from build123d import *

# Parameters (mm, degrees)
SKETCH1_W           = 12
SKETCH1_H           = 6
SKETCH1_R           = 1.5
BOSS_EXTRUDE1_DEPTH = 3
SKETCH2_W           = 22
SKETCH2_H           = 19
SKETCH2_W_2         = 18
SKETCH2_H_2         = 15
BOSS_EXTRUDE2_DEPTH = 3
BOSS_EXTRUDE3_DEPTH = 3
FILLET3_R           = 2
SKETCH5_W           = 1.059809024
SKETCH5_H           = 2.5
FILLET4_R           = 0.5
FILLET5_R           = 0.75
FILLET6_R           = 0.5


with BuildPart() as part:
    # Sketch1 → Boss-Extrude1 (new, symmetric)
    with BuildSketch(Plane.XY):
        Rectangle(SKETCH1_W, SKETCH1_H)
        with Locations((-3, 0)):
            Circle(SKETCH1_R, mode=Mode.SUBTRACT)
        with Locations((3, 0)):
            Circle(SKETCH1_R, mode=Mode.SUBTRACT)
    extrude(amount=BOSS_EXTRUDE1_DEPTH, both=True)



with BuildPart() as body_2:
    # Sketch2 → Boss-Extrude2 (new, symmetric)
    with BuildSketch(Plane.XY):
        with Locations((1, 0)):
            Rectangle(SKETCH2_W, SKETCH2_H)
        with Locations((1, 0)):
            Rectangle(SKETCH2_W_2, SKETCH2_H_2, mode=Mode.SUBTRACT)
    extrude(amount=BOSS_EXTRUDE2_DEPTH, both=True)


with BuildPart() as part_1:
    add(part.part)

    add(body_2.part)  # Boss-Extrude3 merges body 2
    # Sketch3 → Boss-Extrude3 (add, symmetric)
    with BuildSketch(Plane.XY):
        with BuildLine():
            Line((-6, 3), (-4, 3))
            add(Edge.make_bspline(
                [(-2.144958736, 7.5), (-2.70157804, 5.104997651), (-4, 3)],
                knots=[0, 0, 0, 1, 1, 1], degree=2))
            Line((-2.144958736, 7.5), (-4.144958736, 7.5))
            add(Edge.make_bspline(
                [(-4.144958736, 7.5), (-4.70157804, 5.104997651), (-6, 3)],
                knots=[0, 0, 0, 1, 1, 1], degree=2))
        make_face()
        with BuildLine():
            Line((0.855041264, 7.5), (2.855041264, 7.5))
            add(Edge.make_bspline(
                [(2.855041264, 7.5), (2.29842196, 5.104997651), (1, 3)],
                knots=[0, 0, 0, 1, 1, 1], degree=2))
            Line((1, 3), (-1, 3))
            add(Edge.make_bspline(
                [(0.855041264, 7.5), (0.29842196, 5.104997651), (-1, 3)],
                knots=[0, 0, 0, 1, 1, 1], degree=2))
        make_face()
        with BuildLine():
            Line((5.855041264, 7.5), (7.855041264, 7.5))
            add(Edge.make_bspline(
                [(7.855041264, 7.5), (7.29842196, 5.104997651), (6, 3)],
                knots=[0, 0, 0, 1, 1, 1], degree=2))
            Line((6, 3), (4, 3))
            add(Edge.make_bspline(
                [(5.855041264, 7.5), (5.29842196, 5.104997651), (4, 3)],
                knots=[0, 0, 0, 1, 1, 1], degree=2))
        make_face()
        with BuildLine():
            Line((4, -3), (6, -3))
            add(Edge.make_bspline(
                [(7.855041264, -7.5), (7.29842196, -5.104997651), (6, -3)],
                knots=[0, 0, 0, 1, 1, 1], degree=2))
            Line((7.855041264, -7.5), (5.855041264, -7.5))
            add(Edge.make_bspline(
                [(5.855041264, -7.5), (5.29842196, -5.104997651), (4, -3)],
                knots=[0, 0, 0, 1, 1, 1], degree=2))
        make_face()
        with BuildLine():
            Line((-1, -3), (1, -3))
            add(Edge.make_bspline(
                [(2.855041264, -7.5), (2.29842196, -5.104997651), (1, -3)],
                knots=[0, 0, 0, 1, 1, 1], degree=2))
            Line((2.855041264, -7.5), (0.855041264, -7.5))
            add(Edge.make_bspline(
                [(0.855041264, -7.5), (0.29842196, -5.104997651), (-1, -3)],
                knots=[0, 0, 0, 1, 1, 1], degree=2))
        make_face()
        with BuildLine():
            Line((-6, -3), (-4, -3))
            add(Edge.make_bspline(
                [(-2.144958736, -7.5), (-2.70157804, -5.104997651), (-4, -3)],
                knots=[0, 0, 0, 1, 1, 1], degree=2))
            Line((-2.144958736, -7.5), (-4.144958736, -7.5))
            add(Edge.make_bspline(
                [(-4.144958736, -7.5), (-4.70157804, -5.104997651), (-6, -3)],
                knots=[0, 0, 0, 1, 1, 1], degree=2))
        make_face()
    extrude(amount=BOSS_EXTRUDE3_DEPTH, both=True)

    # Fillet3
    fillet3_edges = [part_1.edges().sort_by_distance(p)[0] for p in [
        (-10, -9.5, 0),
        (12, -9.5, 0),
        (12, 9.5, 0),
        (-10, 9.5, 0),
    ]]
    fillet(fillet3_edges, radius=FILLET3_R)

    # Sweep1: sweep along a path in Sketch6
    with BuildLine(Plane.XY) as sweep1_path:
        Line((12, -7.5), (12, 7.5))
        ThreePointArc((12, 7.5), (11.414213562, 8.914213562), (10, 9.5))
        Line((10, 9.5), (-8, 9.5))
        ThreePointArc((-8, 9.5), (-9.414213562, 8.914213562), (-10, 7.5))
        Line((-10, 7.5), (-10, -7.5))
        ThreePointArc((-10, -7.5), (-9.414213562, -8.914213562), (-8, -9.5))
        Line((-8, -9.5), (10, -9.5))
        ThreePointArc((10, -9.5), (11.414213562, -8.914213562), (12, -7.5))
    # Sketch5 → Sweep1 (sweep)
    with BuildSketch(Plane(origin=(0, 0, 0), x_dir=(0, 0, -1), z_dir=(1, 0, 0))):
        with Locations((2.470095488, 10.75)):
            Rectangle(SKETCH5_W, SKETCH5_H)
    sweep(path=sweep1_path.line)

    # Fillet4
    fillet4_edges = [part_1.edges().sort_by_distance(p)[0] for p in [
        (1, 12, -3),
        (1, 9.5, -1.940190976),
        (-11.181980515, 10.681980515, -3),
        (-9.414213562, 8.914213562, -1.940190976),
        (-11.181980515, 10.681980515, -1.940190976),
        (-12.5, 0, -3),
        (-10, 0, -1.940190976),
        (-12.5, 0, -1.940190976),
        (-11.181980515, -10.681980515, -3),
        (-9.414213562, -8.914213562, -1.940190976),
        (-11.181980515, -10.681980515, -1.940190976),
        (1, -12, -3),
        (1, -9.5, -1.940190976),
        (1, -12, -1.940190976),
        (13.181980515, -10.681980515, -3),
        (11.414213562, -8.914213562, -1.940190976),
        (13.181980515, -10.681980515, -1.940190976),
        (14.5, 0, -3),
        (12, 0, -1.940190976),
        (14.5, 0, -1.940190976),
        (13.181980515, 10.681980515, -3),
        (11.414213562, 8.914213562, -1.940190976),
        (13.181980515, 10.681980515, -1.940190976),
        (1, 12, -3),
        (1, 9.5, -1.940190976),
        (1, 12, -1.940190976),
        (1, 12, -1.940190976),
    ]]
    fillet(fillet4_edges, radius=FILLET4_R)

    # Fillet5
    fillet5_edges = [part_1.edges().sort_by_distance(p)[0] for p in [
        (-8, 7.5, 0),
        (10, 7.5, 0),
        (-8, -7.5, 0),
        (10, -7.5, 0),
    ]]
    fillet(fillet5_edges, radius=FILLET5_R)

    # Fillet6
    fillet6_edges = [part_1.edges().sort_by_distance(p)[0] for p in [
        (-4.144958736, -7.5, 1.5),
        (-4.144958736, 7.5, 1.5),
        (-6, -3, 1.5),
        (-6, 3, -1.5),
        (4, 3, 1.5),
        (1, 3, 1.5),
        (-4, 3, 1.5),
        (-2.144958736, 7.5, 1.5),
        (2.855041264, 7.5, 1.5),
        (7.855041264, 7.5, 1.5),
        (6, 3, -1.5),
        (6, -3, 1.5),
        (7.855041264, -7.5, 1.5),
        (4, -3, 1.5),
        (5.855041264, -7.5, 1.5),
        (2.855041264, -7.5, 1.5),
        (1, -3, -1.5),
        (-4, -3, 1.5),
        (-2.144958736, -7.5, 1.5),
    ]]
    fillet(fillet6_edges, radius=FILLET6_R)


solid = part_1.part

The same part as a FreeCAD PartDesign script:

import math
import FreeCAD as App
import Part
import Sketcher


def edges_at(feature, points):
    """Names of the edges that pass closest to the given points."""
    edges = feature.Shape.Edges
    near = lambda p: min(range(len(edges)), key=lambda i: edges[i].distToShape(Part.Vertex(*p))[0])
    return sorted({f"Edge{near(p) + 1}" for p in points})


def add_polygon(sketch, points):
    """Adds a closed chain of lines whose ends are joined by coincident constraints."""
    first, n = sketch.GeometryCount, len(points)
    for a, b in zip(points, points[1:] + points[:1]):
        sketch.addGeometry(Part.LineSegment(App.Vector(*a, 0), App.Vector(*b, 0)), False)
    for i in range(n):
        sketch.addConstraint(Sketcher.Constraint("Coincident", first + i, 2, first + (i + 1) % n, 1))

doc = App.newDocument("Part")
body = doc.addObject("PartDesign::Body", "Body")

sketch1 = doc.addObject("Sketcher::SketchObject", "Sketch")
body.addObject(sketch1)
sketch1.AttachmentSupport = (doc.XY_Plane, [""])
sketch1.MapMode = "FlatFace"
add_polygon(sketch1, [(-6, 3), (-6, -3), (6, -3), (6, 3)])
sketch1.addGeometry(Part.Circle(App.Vector(-3, 0, 0), App.Vector(0, 0, 1), 1.5), False)
sketch1.addGeometry(Part.Circle(App.Vector(3, 0, 0), App.Vector(0, 0, 1), 1.5), False)
sketch1.addConstraint([
    Sketcher.Constraint("Vertical", 0),
    Sketcher.Constraint("Horizontal", 1),
    Sketcher.Constraint("Vertical", 2),
    Sketcher.Constraint("Horizontal", 3),
    Sketcher.Constraint("Equal", 4, 5),
    Sketcher.Constraint("Symmetric", 4, 3, 5, 3, -1, 1),
    Sketcher.Constraint("Symmetric", 0, 2, 2, 2, -1, 1),
    Sketcher.Constraint("PointOnObject", 4, 3, -1),
    Sketcher.Constraint("Diameter", 4, 3.0),
    Sketcher.Constraint("DistanceX", 1, 1, 1, 2, 12.0),
    Sketcher.Constraint("DistanceY", 0, 2, 0, 1, 6.0),
    Sketcher.Constraint("DistanceX", 4, 3, -1, 1, 3.0),
])
pad1 = doc.addObject("PartDesign::Pad", "Pad")
body.addObject(pad1)
pad1.Profile = sketch1
pad1.Length = 6
pad1.Midplane = True
body2 = doc.addObject("PartDesign::Body", "Body001")

sketch2 = doc.addObject("Sketcher::SketchObject", "Sketch001")
body2.addObject(sketch2)
sketch2.AttachmentSupport = (doc.getObject("XY_Plane001"), [""])
sketch2.MapMode = "FlatFace"
add_polygon(sketch2, [(-10, 10), (-10, -10), (12, -10), (12, 10)])
add_polygon(sketch2, [(10, -8), (-8, -8), (-8, 8), (10, 8)])
sketch2.addConstraint([
    Sketcher.Constraint("Vertical", 0),
    Sketcher.Constraint("Horizontal", 1),
    Sketcher.Constraint("Vertical", 2),
    Sketcher.Constraint("Horizontal", 3),
    Sketcher.Constraint("Horizontal", 4),
    Sketcher.Constraint("Vertical", 5),
    Sketcher.Constraint("Horizontal", 6),
    Sketcher.Constraint("Vertical", 7),
    Sketcher.Constraint("DistanceX", 1, 1, 1, 2, 22.0),
    Sketcher.Constraint("DistanceX", 4, 2, 4, 1, 18.0),
    Sketcher.Constraint("DistanceY", 0, 2, 0, 1, 19.0),
    Sketcher.Constraint("DistanceY", 5, 1, 5, 2, 15.0),
    Sketcher.Constraint("DistanceX", 0, 2, -1, 1, 10.0),
    Sketcher.Constraint("DistanceX", 4, 2, -1, 1, 8.0),
    Sketcher.Constraint("DistanceY", 0, 2, 4, 2, 2.0),
    Sketcher.Constraint("DistanceY", 0, 2, -1, 1, 9.5),
])
pad2 = doc.addObject("PartDesign::Pad", "Pad001")
body2.addObject(pad2)
pad2.Profile = sketch2
pad2.Length = 6
pad2.Midplane = True
body.AllowCompound = True
doc.recompute()

boolean = doc.addObject("PartDesign::Boolean", "Boolean")
body.addObject(boolean)
boolean.Type = "Fuse"
boolean.addObjects([body2])

sketch3 = doc.addObject("Sketcher::SketchObject", "Sketch002")
body.addObject(sketch3)
sketch3.AttachmentSupport = (doc.XY_Plane, [""])
sketch3.MapMode = "FlatFace"
sketch3.addGeometry([
    Part.LineSegment(App.Vector(-6, 3, 0), App.Vector(-4, 3, 0)),
    Part.BSplineCurve([App.Vector(-2.144959, 7.5, 0), App.Vector(-2.701578, 5.104998, 0), App.Vector(-4, 3, 0)], [3, 3], [0, 1], False, 2, [1, 1, 1], False),
    Part.LineSegment(App.Vector(-2.144959, 7.5, 0), App.Vector(-4.144959, 7.5, 0)),
    Part.BSplineCurve([App.Vector(-4.144959, 7.5, 0), App.Vector(-4.701578, 5.104998, 0), App.Vector(-6, 3, 0)], [3, 3], [0, 1], False, 2, [1, 1, 1], False),
    Part.LineSegment(App.Vector(2.855041, 7.5, 0), App.Vector(0.855041, 7.5, 0)),
    Part.BSplineCurve([App.Vector(0.855041, 7.5, 0), App.Vector(0.298422, 5.104998, 0), App.Vector(-1, 3, 0)], [3, 3], [0, 1], False, 2, [1, 1, 1], False),
    Part.LineSegment(App.Vector(-1, 3, 0), App.Vector(1, 3, 0)),
    Part.BSplineCurve([App.Vector(2.855041, 7.5, 0), App.Vector(2.298422, 5.104998, 0), App.Vector(1, 3, 0)], [3, 3], [0, 1], False, 2, [1, 1, 1], False),
    Part.LineSegment(App.Vector(7.855041, 7.5, 0), App.Vector(5.855041, 7.5, 0)),
    Part.BSplineCurve([App.Vector(5.855041, 7.5, 0), App.Vector(5.298422, 5.104998, 0), App.Vector(4, 3, 0)], [3, 3], [0, 1], False, 2, [1, 1, 1], False),
    Part.LineSegment(App.Vector(4, 3, 0), App.Vector(6, 3, 0)),
    Part.BSplineCurve([App.Vector(7.855041, 7.5, 0), App.Vector(7.298422, 5.104998, 0), App.Vector(6, 3, 0)], [3, 3], [0, 1], False, 2, [1, 1, 1], False),
    Part.LineSegment(App.Vector(6, -3, 0), App.Vector(4, -3, 0)),
    Part.BSplineCurve([App.Vector(5.855041, -7.5, 0), App.Vector(5.298422, -5.104998, 0), App.Vector(4, -3, 0)], [3, 3], [0, 1], False, 2, [1, 1, 1], False),
    Part.LineSegment(App.Vector(5.855041, -7.5, 0), App.Vector(7.855041, -7.5, 0)),
    Part.BSplineCurve([App.Vector(7.855041, -7.5, 0), App.Vector(7.298422, -5.104998, 0), App.Vector(6, -3, 0)], [3, 3], [0, 1], False, 2, [1, 1, 1], False),
    Part.LineSegment(App.Vector(1, -3, 0), App.Vector(-1, -3, 0)),
    Part.BSplineCurve([App.Vector(0.855041, -7.5, 0), App.Vector(0.298422, -5.104998, 0), App.Vector(-1, -3, 0)], [3, 3], [0, 1], False, 2, [1, 1, 1], False),
    Part.LineSegment(App.Vector(0.855041, -7.5, 0), App.Vector(2.855041, -7.5, 0)),
    Part.BSplineCurve([App.Vector(2.855041, -7.5, 0), App.Vector(2.298422, -5.104998, 0), App.Vector(1, -3, 0)], [3, 3], [0, 1], False, 2, [1, 1, 1], False),
    Part.LineSegment(App.Vector(-4, -3, 0), App.Vector(-6, -3, 0)),
    Part.BSplineCurve([App.Vector(-4.144959, -7.5, 0), App.Vector(-4.701578, -5.104998, 0), App.Vector(-6, -3, 0)], [3, 3], [0, 1], False, 2, [1, 1, 1], False),
    Part.LineSegment(App.Vector(-4.144959, -7.5, 0), App.Vector(-2.144959, -7.5, 0)),
    Part.BSplineCurve([App.Vector(-2.144959, -7.5, 0), App.Vector(-2.701578, -5.104998, 0), App.Vector(-4, -3, 0)], [3, 3], [0, 1], False, 2, [1, 1, 1], False),
], False)
sketch3.addConstraint([
    Sketcher.Constraint("Block", 1),
    Sketcher.Constraint("Block", 3),
    Sketcher.Constraint("Block", 5),
    Sketcher.Constraint("Block", 7),
    Sketcher.Constraint("Block", 9),
    Sketcher.Constraint("Block", 11),
    Sketcher.Constraint("Block", 13),
    Sketcher.Constraint("Block", 15),
    Sketcher.Constraint("Block", 17),
    Sketcher.Constraint("Block", 19),
    Sketcher.Constraint("Block", 21),
    Sketcher.Constraint("Block", 23),
    Sketcher.Constraint("Coincident", 0, 2, 1, 2),
    Sketcher.Constraint("Coincident", 1, 1, 2, 1),
    Sketcher.Constraint("Coincident", 2, 2, 3, 1),
    Sketcher.Constraint("Coincident", 3, 2, 0, 1),
    Sketcher.Constraint("Coincident", 4, 2, 5, 1),
    Sketcher.Constraint("Coincident", 5, 2, 6, 1),
    Sketcher.Constraint("Coincident", 6, 2, 7, 2),
    Sketcher.Constraint("Coincident", 7, 1, 4, 1),
    Sketcher.Constraint("Coincident", 8, 2, 9, 1),
    Sketcher.Constraint("Coincident", 9, 2, 10, 1),
    Sketcher.Constraint("Coincident", 10, 2, 11, 2),
    Sketcher.Constraint("Coincident", 11, 1, 8, 1),
    Sketcher.Constraint("Coincident", 12, 2, 13, 2),
    Sketcher.Constraint("Coincident", 13, 1, 14, 1),
    Sketcher.Constraint("Coincident", 14, 2, 15, 1),
    Sketcher.Constraint("Coincident", 15, 2, 12, 1),
    Sketcher.Constraint("Coincident", 16, 2, 17, 2),
    Sketcher.Constraint("Coincident", 17, 1, 18, 1),
    Sketcher.Constraint("Coincident", 18, 2, 19, 1),
    Sketcher.Constraint("Coincident", 19, 2, 16, 1),
    Sketcher.Constraint("Coincident", 20, 2, 21, 2),
    Sketcher.Constraint("Coincident", 21, 1, 22, 1),
    Sketcher.Constraint("Coincident", 22, 2, 23, 1),
    Sketcher.Constraint("Coincident", 23, 2, 20, 1),
])
pad3 = doc.addObject("PartDesign::Pad", "Pad002")
body.addObject(pad3)
pad3.Profile = sketch3
pad3.Length = 6
pad3.Midplane = True
doc.recompute()

fillet = doc.addObject("PartDesign::Fillet", "Fillet")
body.addObject(fillet)
fillet.Base = (pad3, edges_at(pad3, [
    (-10, -9.5, 0),
    (12, -9.5, 0),
    (12, 9.5, 0),
    (-10, 9.5, 0),
]))
fillet.Radius = 2

sketch4 = doc.addObject("Sketcher::SketchObject", "Sketch003")
body.addObject(sketch4)
sketch4.AttachmentSupport = (doc.YZ_Plane, [""])
sketch4.MapMode = "FlatFace"
add_polygon(sketch4, [(12, -1.9), (9.5, -1.9), (9.5, -3), (12, -3)])
sketch4.addConstraint([
    Sketcher.Constraint("Horizontal", 0),
    Sketcher.Constraint("Vertical", 1),
    Sketcher.Constraint("Horizontal", 2),
    Sketcher.Constraint("Vertical", 3),
    Sketcher.Constraint("DistanceX", 0, 2, 0, 1, 2.5),
    Sketcher.Constraint("DistanceY", 1, 2, -1, 1, 3.0),
    Sketcher.Constraint("DistanceX", -1, 1, 2, 2, 12.0),
    Sketcher.Constraint("DistanceY", 1, 2, 1, 1, 1.059809),
])

sketch5 = doc.addObject("Sketcher::SketchObject", "Sketch004")
body.addObject(sketch5)
sketch5.AttachmentSupport = (doc.XY_Plane, [""])
sketch5.MapMode = "FlatFace"
sketch5.addGeometry([
    Part.LineSegment(App.Vector(12, -7.5, 0), App.Vector(12, 7.5, 0)),
    Part.ArcOfCircle(Part.Circle(App.Vector(10, 7.5, 0), App.Vector(0, 0, 1), 2), math.radians(0), math.radians(90)),
    Part.LineSegment(App.Vector(10, 9.5, 0), App.Vector(-8, 9.5, 0)),
    Part.ArcOfCircle(Part.Circle(App.Vector(-8, 7.5, 0), App.Vector(0, 0, 1), 2), math.radians(90), math.radians(180)),
    Part.LineSegment(App.Vector(-10, 7.5, 0), App.Vector(-10, -7.5, 0)),
    Part.ArcOfCircle(Part.Circle(App.Vector(-8, -7.5, 0), App.Vector(0, 0, 1), 2), math.radians(-180), math.radians(-90)),
    Part.LineSegment(App.Vector(-8, -9.5, 0), App.Vector(10, -9.5, 0)),
    Part.ArcOfCircle(Part.Circle(App.Vector(10, -7.5, 0), App.Vector(0, 0, 1), 2), math.radians(-90), math.radians(0)),
], False)
sketch5.addConstraint([
    Sketcher.Constraint("Tangent", 0, 2, 1, 1),
    Sketcher.Constraint("Tangent", 1, 2, 2, 1),
    Sketcher.Constraint("Tangent", 2, 2, 3, 1),
    Sketcher.Constraint("Tangent", 3, 2, 4, 1),
    Sketcher.Constraint("Tangent", 4, 2, 5, 1),
    Sketcher.Constraint("Tangent", 5, 2, 6, 1),
    Sketcher.Constraint("Tangent", 6, 2, 7, 1),
    Sketcher.Constraint("Tangent", 7, 2, 0, 1),
    Sketcher.Constraint("Vertical", 0),
    Sketcher.Constraint("Horizontal", 2),
    Sketcher.Constraint("Vertical", 4),
    Sketcher.Constraint("Horizontal", 6),
    Sketcher.Constraint("Equal", 1, 3),
    Sketcher.Constraint("Equal", 3, 5),
    Sketcher.Constraint("Equal", 5, 7),
    Sketcher.Constraint("Radius", 1, 2.0),
    Sketcher.Constraint("DistanceX", 2, 2, 2, 1, 18.0),
    Sketcher.Constraint("DistanceY", 0, 1, 0, 2, 15.0),
    Sketcher.Constraint("DistanceX", -1, 1, 1, 3, 10.0),
    Sketcher.Constraint("DistanceY", -1, 1, 1, 3, 7.5),
])
doc.recompute()

additivepipe = doc.addObject("PartDesign::AdditivePipe", "AdditivePipe")
body.addObject(additivepipe)
additivepipe.Profile = sketch4
additivepipe.Spine = (sketch5, ["Edge1", "Edge2", "Edge3", "Edge4", "Edge5", "Edge6", "Edge7", "Edge8"])
doc.recompute()

fillet2 = doc.addObject("PartDesign::Fillet", "Fillet001")
body.addObject(fillet2)
fillet2.Base = (additivepipe, edges_at(additivepipe, [
    (1, 12, -3),
    (1, 9.5, -1.94),
    (-11.182, 10.682, -3),
    (-9.414, 8.914, -1.94),
    (-11.182, 10.682, -1.94),
    (-12.5, 0, -3),
    (-10, 0, -1.94),
    (-12.5, 0, -1.94),
    (-11.182, -10.682, -3),
    (-9.414, -8.914, -1.94),
    (-11.182, -10.682, -1.94),
    (1, -12, -3),
    (1, -9.5, -1.94),
    (1, -12, -1.94),
    (13.182, -10.682, -3),
    (11.414, -8.914, -1.94),
    (13.182, -10.682, -1.94),
    (14.5, 0, -3),
    (12, 0, -1.94),
    (14.5, 0, -1.94),
    (13.182, 10.682, -3),
    (11.414, 8.914, -1.94),
    (13.182, 10.682, -1.94),
    (1, 12, -3),
    (1, 9.5, -1.94),
    (1, 12, -1.94),
    (1, 12, -1.94),
]))
fillet2.Radius = 0.5
doc.recompute()

fillet3 = doc.addObject("PartDesign::Fillet", "Fillet002")
body.addObject(fillet3)
fillet3.Base = (fillet2, edges_at(fillet2, [
    (-8, 7.5, 0),
    (10, 7.5, 0),
    (-8, -7.5, 0),
    (10, -7.5, 0),
]))
fillet3.Radius = 0.75
doc.recompute()

fillet4 = doc.addObject("PartDesign::Fillet", "Fillet003")
body.addObject(fillet4)
fillet4.Base = (fillet3, edges_at(fillet3, [
    (-4.145, -7.5, 1.5),
    (-4.145, 7.5, 1.5),
    (-6, -3, 1.5),
    (-6, 3, -1.5),
    (4, 3, 1.5),
    (1, 3, 1.5),
    (-4, 3, 1.5),
    (-2.145, 7.5, 1.5),
    (2.855, 7.5, 1.5),
    (7.855, 7.5, 1.5),
    (6, 3, -1.5),
    (6, -3, 1.5),
    (7.855, -7.5, 1.5),
    (4, -3, 1.5),
    (5.855, -7.5, 1.5),
    (2.855, -7.5, 1.5),
    (1, -3, -1.5),
    (-4, -3, 1.5),
    (-2.145, -7.5, 1.5),
]))
fillet4.Radius = 0.5

doc.recompute()
